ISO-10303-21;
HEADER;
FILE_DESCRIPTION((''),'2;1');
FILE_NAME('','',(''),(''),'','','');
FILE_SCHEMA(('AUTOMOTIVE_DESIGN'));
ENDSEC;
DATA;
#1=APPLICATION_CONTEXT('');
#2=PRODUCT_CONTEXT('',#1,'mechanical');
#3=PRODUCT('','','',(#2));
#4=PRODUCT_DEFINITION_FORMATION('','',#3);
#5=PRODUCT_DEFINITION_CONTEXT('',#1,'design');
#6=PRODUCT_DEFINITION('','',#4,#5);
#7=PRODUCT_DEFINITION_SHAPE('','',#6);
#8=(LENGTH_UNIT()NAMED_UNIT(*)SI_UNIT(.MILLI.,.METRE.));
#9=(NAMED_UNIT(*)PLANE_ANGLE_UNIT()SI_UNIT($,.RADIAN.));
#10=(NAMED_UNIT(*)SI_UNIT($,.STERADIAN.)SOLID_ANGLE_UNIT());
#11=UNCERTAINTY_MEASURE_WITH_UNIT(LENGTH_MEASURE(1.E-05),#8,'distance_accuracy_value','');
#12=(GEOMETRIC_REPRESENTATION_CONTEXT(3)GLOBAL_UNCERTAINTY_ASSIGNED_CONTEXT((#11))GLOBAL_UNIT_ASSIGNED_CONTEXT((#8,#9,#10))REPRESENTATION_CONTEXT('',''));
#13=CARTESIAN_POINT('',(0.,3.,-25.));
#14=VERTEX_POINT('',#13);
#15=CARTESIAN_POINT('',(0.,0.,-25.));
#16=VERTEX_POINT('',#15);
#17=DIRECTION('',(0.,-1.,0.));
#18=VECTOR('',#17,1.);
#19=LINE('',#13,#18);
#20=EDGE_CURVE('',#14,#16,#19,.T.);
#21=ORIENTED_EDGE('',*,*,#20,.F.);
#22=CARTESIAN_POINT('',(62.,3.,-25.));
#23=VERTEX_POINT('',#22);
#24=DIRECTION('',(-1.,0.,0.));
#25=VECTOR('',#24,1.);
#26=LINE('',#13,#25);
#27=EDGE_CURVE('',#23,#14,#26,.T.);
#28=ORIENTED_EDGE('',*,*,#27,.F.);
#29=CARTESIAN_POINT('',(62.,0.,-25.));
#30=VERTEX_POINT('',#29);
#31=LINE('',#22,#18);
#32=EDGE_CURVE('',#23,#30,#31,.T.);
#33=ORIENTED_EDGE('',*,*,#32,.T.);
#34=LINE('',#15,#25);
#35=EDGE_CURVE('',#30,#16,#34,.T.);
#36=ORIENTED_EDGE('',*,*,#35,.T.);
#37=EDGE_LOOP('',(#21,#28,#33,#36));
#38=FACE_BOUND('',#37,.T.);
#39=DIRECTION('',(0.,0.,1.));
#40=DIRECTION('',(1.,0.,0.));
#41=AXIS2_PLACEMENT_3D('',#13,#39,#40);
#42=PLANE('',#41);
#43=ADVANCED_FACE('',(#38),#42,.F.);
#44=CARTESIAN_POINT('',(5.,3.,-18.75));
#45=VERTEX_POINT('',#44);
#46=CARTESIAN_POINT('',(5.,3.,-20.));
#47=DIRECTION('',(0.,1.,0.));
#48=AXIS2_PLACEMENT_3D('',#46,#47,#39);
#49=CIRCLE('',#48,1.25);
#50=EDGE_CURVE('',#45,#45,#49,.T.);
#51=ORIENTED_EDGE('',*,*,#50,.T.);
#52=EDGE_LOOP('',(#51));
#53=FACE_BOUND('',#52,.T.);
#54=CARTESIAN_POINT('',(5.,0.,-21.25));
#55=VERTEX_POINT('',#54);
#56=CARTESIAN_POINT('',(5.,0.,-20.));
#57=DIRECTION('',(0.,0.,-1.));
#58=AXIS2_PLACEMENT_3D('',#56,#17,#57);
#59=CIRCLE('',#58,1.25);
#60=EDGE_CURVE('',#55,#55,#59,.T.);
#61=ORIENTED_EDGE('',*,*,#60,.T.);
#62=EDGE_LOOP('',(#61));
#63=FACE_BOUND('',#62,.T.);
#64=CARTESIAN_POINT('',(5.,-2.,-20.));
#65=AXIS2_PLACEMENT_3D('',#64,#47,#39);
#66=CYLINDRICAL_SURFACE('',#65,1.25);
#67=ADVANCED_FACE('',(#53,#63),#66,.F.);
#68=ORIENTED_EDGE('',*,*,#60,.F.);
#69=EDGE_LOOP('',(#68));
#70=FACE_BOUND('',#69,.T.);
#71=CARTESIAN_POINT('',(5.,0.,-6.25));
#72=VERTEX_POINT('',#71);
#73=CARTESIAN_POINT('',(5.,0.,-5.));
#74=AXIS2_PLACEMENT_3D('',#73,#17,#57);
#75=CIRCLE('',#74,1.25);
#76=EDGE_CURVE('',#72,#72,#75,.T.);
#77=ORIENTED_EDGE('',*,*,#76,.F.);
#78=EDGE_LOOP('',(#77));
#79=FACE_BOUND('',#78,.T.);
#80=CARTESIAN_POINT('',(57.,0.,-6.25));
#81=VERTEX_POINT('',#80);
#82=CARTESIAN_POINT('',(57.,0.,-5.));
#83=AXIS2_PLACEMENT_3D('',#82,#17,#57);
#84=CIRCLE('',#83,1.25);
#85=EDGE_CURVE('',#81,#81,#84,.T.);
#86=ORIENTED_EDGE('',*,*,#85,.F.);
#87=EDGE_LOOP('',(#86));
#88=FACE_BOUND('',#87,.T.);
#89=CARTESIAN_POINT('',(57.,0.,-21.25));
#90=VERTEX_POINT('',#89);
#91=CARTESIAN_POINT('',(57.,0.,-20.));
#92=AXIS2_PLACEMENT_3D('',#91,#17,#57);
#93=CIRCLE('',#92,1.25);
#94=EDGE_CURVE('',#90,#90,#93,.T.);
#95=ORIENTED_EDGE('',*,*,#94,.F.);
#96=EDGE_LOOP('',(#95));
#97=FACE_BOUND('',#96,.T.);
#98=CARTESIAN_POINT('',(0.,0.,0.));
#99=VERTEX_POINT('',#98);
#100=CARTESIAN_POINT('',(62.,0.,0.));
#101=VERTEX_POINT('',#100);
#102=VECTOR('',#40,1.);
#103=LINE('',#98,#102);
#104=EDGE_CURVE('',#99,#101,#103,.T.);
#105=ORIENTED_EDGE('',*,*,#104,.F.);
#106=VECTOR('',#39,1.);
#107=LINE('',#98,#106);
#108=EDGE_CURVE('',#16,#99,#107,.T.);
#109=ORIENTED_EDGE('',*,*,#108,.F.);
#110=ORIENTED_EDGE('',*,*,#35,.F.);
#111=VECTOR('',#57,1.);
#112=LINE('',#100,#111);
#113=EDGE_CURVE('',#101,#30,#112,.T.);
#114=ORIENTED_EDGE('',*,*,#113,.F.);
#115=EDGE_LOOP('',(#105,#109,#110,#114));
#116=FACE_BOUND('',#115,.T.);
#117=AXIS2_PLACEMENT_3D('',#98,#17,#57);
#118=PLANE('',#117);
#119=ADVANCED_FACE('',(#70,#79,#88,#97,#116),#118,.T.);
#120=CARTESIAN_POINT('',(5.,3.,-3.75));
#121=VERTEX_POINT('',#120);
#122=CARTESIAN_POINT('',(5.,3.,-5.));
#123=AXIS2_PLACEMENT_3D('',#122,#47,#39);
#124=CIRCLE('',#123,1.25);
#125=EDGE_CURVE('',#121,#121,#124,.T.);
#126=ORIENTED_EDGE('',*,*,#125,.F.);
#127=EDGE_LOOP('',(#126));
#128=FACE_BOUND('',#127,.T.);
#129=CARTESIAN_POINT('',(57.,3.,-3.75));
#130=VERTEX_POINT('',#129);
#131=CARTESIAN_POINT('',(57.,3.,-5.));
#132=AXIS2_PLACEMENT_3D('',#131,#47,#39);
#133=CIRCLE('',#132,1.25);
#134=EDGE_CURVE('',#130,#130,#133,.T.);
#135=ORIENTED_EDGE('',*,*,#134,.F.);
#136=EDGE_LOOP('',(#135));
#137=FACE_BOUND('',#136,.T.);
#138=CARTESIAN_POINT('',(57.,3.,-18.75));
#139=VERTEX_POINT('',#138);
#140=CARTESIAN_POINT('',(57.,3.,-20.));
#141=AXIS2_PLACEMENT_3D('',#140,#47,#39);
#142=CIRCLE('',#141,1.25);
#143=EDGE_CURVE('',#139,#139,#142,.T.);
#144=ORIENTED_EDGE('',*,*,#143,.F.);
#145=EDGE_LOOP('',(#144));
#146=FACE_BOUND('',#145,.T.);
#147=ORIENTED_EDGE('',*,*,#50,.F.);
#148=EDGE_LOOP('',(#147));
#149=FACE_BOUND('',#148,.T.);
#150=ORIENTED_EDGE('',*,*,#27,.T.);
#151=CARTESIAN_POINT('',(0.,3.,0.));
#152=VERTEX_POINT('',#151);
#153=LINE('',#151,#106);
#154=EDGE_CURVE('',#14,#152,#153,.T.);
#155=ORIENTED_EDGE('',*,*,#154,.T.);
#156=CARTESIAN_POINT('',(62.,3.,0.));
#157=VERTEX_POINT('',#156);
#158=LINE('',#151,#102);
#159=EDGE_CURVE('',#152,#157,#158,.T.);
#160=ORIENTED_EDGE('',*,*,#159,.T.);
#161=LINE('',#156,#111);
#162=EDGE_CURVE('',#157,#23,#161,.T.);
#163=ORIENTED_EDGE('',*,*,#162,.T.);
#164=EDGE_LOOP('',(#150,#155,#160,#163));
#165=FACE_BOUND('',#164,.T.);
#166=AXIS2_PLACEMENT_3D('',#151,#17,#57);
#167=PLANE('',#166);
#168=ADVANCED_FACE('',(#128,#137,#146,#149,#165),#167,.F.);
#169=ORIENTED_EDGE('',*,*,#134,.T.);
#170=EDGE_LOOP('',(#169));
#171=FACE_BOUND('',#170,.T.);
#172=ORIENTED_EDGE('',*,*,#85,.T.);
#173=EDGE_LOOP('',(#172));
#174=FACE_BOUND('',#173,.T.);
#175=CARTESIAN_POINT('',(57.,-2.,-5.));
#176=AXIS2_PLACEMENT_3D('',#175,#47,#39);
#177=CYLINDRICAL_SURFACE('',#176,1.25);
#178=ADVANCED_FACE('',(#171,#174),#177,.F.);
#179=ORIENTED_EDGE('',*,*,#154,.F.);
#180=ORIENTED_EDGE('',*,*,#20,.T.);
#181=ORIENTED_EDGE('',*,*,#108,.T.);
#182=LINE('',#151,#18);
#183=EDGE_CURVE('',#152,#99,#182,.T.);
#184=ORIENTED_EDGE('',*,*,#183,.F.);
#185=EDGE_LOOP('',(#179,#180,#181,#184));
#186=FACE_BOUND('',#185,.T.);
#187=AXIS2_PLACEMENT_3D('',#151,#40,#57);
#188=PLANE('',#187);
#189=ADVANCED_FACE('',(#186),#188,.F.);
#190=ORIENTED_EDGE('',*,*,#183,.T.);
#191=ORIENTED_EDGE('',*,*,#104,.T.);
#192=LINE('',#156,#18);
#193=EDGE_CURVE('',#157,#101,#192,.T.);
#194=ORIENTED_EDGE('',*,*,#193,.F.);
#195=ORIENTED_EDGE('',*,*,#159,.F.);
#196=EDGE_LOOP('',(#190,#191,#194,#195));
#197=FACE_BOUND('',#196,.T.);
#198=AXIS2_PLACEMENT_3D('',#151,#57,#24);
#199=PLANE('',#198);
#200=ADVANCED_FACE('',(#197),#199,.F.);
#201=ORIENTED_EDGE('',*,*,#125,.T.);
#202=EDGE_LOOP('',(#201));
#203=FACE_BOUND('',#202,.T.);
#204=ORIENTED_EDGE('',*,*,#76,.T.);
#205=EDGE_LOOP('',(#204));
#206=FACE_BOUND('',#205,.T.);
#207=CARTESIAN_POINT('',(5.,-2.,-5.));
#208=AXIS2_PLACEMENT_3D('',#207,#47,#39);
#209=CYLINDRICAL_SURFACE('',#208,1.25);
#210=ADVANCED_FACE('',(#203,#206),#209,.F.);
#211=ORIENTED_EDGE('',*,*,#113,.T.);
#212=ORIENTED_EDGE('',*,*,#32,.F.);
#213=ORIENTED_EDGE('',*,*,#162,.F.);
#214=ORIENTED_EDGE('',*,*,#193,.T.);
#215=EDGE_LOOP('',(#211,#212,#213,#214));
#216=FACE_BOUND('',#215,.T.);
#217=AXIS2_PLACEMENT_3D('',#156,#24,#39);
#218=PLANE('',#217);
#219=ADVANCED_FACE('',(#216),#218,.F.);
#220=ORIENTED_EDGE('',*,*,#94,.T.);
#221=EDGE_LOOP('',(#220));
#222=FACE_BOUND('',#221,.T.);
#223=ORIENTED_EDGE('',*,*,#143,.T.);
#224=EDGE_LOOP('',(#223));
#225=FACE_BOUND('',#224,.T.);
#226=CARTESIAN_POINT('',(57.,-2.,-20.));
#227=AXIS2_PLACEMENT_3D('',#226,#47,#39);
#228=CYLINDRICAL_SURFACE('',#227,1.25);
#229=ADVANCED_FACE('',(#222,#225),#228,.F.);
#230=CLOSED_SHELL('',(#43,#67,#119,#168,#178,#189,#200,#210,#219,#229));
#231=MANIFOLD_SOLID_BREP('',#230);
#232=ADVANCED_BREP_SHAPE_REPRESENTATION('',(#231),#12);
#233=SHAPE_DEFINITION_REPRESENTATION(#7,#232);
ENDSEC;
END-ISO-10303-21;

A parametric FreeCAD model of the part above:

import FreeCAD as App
import Part
import Sketcher

doc = App.newDocument("Part")
body = doc.addObject("PartDesign::Body", "Body")

# Sketch on XZ plane
sketch1 = body.newObject("Sketcher::SketchObject", "Sketch")
sketch1.AttachmentSupport = (doc.getObject("XZ_Plane"), [""])
sketch1.MapMode = "FlatFace"
sketch1.addGeometry([
    Part.LineSegment(App.Vector(0, -25, 0), App.Vector(0, 0, 0)),
    Part.LineSegment(App.Vector(0, 0, 0), App.Vector(62, 0, 0)),
    Part.LineSegment(App.Vector(62, 0, 0), App.Vector(62, -25, 0)),
    Part.LineSegment(App.Vector(62, -25, 0), App.Vector(0, -25, 0)),
], False)
sketch1.addConstraint([
    Sketcher.Constraint("Coincident", 0, 2, 1, 1),
    Sketcher.Constraint("Coincident", 1, 2, 2, 1),
    Sketcher.Constraint("Coincident", 2, 2, 3, 1),
    Sketcher.Constraint("Coincident", 3, 2, 0, 1),
    Sketcher.Constraint("Vertical", 0),
    Sketcher.Constraint("Horizontal", 1),
    Sketcher.Constraint("Vertical", 2),
    Sketcher.Constraint("Horizontal", 3),
    Sketcher.Constraint("Coincident", 0, 2, -1, 1),
    Sketcher.Constraint("DistanceX", 1, 1, 1, 2, 62.0),
    Sketcher.Constraint("DistanceY", 0, 1, 0, 2, 25.0),
])
pad1 = body.newObject("PartDesign::Pad", "Pad")
pad1.Profile = sketch1
pad1.Length = 3
pad1.Reversed = True

# Sketch on XZ plane
sketch2 = body.newObject("Sketcher::SketchObject", "Sketch001")
sketch2.AttachmentSupport = (doc.getObject("XZ_Plane"), [""])
sketch2.MapMode = "FlatFace"
sketch2.AttachmentOffset = App.Placement(App.Vector(0, 0, -3), App.Rotation())
sketch2.addGeometry([
    Part.Circle(App.Vector(5, -5, 0), App.Vector(0, 0, 1), 1.2),
    Part.Circle(App.Vector(57, -5, 0), App.Vector(0, 0, 1), 1.2),
    Part.Circle(App.Vector(57, -20, 0), App.Vector(0, 0, 1), 1.2),
    Part.Circle(App.Vector(5, -20, 0), App.Vector(0, 0, 1), 1.2),
], False)
sketch2.addConstraint([
    Sketcher.Constraint("Equal", 0, 1),
    Sketcher.Constraint("Equal", 1, 2),
    Sketcher.Constraint("Equal", 2, 3),
    Sketcher.Constraint("Horizontal", 0, 3, 1, 3),
    Sketcher.Constraint("Horizontal", 2, 3, 3, 3),
    Sketcher.Constraint("Vertical", 1, 3, 2, 3),
    Sketcher.Constraint("Vertical", 0, 3, 3, 3),
    Sketcher.Constraint("Diameter", 0, 2.5),
    Sketcher.Constraint("DistanceX", -1, 1, 0, 3, 5.0),
    Sketcher.Constraint("DistanceY", 0, 3, -1, 1, 5.0),
    Sketcher.Constraint("DistanceX", -1, 1, 1, 3, 57.0),
    Sketcher.Constraint("DistanceY", 2, 3, -1, 1, 20.0),
])
pocket1 = body.newObject("PartDesign::Pocket", "Pocket")
pocket1.Profile = sketch2
pocket1.Length = 5
pocket1.Reversed = True

doc.recompute()
